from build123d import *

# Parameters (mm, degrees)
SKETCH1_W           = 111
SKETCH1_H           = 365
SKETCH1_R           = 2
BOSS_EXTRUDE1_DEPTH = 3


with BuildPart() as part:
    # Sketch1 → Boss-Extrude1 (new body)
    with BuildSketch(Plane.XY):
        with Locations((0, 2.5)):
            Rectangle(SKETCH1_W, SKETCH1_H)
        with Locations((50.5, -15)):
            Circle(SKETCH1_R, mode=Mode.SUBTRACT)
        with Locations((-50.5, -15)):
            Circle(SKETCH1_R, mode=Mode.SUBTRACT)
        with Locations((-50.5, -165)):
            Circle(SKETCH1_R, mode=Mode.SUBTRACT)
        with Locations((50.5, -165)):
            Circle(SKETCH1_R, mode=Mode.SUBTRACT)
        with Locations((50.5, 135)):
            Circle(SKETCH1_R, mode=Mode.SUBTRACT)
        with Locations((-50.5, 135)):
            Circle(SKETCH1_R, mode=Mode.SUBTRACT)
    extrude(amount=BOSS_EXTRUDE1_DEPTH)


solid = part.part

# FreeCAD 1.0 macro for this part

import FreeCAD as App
import Part
import Sketcher


def add_polygon(sketch, points):
    """Adds a closed chain of lines whose ends are joined by coincident constraints."""
    first, n = sketch.GeometryCount, len(points)
    for a, b in zip(points, points[1:] + points[:1]):
        sketch.addGeometry(Part.LineSegment(App.Vector(*a, 0), App.Vector(*b, 0)), False)
    for i in range(n):
        sketch.addConstraint(Sketcher.Constraint("Coincident", first + i, 2, first + (i + 1) % n, 1))

doc = App.newDocument("Part")
body = doc.addObject("PartDesign::Body", "Body")

sketch1 = body.newObject("Sketcher::SketchObject", "Sketch")
sketch1.AttachmentSupport = (doc.getObject("XY_Plane"), [""])
sketch1.MapMode = "FlatFace"
add_polygon(sketch1, [(-55.5, 185), (-55.5, -180), (55.5, -180), (55.5, 185)])
sketch1.addGeometry(Part.Circle(App.Vector(-50.5, -165, 0), App.Vector(0, 0, 1), 2), False)
sketch1.addGeometry(Part.Circle(App.Vector(50.5, -165, 0), App.Vector(0, 0, 1), 2), False)
sketch1.addGeometry(Part.Circle(App.Vector(-50.5, -15, 0), App.Vector(0, 0, 1), 2), False)
sketch1.addGeometry(Part.Circle(App.Vector(-50.5, 135, 0), App.Vector(0, 0, 1), 2), False)
sketch1.addGeometry(Part.Circle(App.Vector(50.5, -15, 0), App.Vector(0, 0, 1), 2), False)
sketch1.addGeometry(Part.Circle(App.Vector(50.5, 135, 0), App.Vector(0, 0, 1), 2), False)
sketch1.addConstraint(Sketcher.Constraint("Vertical", 0))
sketch1.addConstraint(Sketcher.Constraint("Horizontal", 1))
sketch1.addConstraint(Sketcher.Constraint("Vertical", 2))
sketch1.addConstraint(Sketcher.Constraint("Horizontal", 3))
sketch1.addConstraint(Sketcher.Constraint("Equal", 4, 5))
sketch1.addConstraint(Sketcher.Constraint("Equal", 5, 6))
sketch1.addConstraint(Sketcher.Constraint("Equal", 6, 7))
sketch1.addConstraint(Sketcher.Constraint("Equal", 7, 8))
sketch1.addConstraint(Sketcher.Constraint("Equal", 8, 9))
sketch1.addConstraint(Sketcher.Constraint("Symmetric", 4, 3, 5, 3, -2))
sketch1.addConstraint(Sketcher.Constraint("Symmetric", 6, 3, 8, 3, -2))
sketch1.addConstraint(Sketcher.Constraint("Symmetric", 7, 3, 9, 3, -2))
sketch1.addConstraint(Sketcher.Constraint("Vertical", 4, 3, 6, 3))
sketch1.addConstraint(Sketcher.Constraint("Vertical", 6, 3, 7, 3))
sketch1.addConstraint(Sketcher.Constraint("Diameter", 4, 4.0))
sketch1.addConstraint(Sketcher.Constraint("DistanceX", 1, 1, 1, 2, 111.0))
sketch1.addConstraint(Sketcher.Constraint("DistanceY", 0, 2, 0, 1, 365.0))
sketch1.addConstraint(Sketcher.Constraint("DistanceY", 4, 3, -1, 1, 165.0))
sketch1.addConstraint(Sketcher.Constraint("DistanceY", 6, 3, -1, 1, 15.0))
sketch1.addConstraint(Sketcher.Constraint("DistanceY", -1, 1, 7, 3, 135.0))
sketch1.addConstraint(Sketcher.Constraint("DistanceY", 0, 2, -1, 1, 180.0))
sketch1.addConstraint(Sketcher.Constraint("DistanceX", 4, 3, 5, 3, 101.0))
sketch1.addConstraint(Sketcher.Constraint("DistanceX", 0, 2, 4, 3, 5.0))
pad1 = body.newObject("PartDesign::Pad", "Pad")
pad1.Profile = sketch1
pad1.Length = 3

doc.recompute()
